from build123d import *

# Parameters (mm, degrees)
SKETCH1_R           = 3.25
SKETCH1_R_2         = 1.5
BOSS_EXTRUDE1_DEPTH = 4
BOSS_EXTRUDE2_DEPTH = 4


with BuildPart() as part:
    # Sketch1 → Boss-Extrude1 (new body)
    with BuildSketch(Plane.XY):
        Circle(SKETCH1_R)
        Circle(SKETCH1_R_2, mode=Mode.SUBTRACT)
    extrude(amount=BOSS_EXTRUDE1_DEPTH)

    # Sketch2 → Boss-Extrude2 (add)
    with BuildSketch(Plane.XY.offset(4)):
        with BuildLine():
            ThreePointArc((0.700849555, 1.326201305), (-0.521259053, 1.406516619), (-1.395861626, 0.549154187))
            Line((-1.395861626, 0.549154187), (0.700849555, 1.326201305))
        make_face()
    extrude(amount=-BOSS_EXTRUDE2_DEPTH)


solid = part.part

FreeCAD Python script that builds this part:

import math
import FreeCAD as App
import Part
import Sketcher

doc = App.newDocument("Part")
params = doc.addObject("Spreadsheet::Sheet", "Params")
for row, (alias, value) in enumerate([
    ("sketch1_diameter", "3 mm"),
    ("sketch1_diameter2", "6.5 mm"),
    ("pad1_length", "4 mm"),
    ("sketch2_radius", "1.5 mm"),
    ("pad2_length", "4 mm"),
], start=1):
    params.set(f"A{row}", alias)
    params.set(f"B{row}", "=" + value)
    params.setAlias(f"B{row}", alias)

body = doc.addObject("PartDesign::Body", "Body")

# Sketch on XY plane
sketch1 = body.newObject("Sketcher::SketchObject", "Sketch")
sketch1.AttachmentSupport = (doc.getObject("XY_Plane"), [""])
sketch1.MapMode = "FlatFace"
sketch1.addGeometry([
    Part.Circle(App.Vector(0, 0, 0), App.Vector(0, 0, 1), 3.25),
    Part.Circle(App.Vector(0, 0, 0), App.Vector(0, 0, 1), 1.5),
], False)
sketch1.addConstraint([
    Sketcher.Constraint("Coincident", 0, 3, -1, 1),
    Sketcher.Constraint("Coincident", 1, 3, -1, 1),
    Sketcher.Constraint("Diameter", 1, 3.0),
    Sketcher.Constraint("Diameter", 0, 6.5),
])
sketch1.setExpression("Constraints[2]", "Params.sketch1_diameter")
sketch1.setExpression("Constraints[3]", "Params.sketch1_diameter2")
pad1 = body.newObject("PartDesign::Pad", "Pad")
pad1.Profile = sketch1
pad1.setExpression("Length", "Params.pad1_length")

# Sketch on XY plane
sketch2 = body.newObject("Sketcher::SketchObject", "Sketch001")
sketch2.AttachmentSupport = (doc.getObject("XY_Plane"), [""])
sketch2.MapMode = "FlatFace"
sketch2.AttachmentOffset = App.Placement(App.Vector(0, 0, 4), App.Rotation())
sketch2.addGeometry([
    Part.ArcOfCircle(Part.Circle(App.Vector(0, 0, 0), App.Vector(0, 0, 1), 1.5), math.radians(62.145164), math.radians(158.524534)),
    Part.LineSegment(App.Vector(-1.395862, 0.549154, 0), App.Vector(0.70085, 1.326201, 0)),
], False)
sketch2.addConstraint([
    Sketcher.Constraint("Coincident", 0, 1, 1, 2),
    Sketcher.Constraint("Coincident", 1, 1, 0, 2),
    Sketcher.Constraint("Coincident", 0, 3, -1, 1),
    Sketcher.Constraint("Radius", 0, 1.5),
    Sketcher.Constraint("DistanceY", -1, 1, 0, 1, 1.326201),
    Sketcher.Constraint("DistanceX", 1, 1, -1, 1, 1.395862),
])
sketch2.setExpression("Constraints[3]", "Params.sketch2_radius")
pad2 = body.newObject("PartDesign::Pad", "Pad001")
pad2.Profile = sketch2
pad2.setExpression("Length", "Params.pad2_length")
pad2.Reversed = True

doc.recompute()
